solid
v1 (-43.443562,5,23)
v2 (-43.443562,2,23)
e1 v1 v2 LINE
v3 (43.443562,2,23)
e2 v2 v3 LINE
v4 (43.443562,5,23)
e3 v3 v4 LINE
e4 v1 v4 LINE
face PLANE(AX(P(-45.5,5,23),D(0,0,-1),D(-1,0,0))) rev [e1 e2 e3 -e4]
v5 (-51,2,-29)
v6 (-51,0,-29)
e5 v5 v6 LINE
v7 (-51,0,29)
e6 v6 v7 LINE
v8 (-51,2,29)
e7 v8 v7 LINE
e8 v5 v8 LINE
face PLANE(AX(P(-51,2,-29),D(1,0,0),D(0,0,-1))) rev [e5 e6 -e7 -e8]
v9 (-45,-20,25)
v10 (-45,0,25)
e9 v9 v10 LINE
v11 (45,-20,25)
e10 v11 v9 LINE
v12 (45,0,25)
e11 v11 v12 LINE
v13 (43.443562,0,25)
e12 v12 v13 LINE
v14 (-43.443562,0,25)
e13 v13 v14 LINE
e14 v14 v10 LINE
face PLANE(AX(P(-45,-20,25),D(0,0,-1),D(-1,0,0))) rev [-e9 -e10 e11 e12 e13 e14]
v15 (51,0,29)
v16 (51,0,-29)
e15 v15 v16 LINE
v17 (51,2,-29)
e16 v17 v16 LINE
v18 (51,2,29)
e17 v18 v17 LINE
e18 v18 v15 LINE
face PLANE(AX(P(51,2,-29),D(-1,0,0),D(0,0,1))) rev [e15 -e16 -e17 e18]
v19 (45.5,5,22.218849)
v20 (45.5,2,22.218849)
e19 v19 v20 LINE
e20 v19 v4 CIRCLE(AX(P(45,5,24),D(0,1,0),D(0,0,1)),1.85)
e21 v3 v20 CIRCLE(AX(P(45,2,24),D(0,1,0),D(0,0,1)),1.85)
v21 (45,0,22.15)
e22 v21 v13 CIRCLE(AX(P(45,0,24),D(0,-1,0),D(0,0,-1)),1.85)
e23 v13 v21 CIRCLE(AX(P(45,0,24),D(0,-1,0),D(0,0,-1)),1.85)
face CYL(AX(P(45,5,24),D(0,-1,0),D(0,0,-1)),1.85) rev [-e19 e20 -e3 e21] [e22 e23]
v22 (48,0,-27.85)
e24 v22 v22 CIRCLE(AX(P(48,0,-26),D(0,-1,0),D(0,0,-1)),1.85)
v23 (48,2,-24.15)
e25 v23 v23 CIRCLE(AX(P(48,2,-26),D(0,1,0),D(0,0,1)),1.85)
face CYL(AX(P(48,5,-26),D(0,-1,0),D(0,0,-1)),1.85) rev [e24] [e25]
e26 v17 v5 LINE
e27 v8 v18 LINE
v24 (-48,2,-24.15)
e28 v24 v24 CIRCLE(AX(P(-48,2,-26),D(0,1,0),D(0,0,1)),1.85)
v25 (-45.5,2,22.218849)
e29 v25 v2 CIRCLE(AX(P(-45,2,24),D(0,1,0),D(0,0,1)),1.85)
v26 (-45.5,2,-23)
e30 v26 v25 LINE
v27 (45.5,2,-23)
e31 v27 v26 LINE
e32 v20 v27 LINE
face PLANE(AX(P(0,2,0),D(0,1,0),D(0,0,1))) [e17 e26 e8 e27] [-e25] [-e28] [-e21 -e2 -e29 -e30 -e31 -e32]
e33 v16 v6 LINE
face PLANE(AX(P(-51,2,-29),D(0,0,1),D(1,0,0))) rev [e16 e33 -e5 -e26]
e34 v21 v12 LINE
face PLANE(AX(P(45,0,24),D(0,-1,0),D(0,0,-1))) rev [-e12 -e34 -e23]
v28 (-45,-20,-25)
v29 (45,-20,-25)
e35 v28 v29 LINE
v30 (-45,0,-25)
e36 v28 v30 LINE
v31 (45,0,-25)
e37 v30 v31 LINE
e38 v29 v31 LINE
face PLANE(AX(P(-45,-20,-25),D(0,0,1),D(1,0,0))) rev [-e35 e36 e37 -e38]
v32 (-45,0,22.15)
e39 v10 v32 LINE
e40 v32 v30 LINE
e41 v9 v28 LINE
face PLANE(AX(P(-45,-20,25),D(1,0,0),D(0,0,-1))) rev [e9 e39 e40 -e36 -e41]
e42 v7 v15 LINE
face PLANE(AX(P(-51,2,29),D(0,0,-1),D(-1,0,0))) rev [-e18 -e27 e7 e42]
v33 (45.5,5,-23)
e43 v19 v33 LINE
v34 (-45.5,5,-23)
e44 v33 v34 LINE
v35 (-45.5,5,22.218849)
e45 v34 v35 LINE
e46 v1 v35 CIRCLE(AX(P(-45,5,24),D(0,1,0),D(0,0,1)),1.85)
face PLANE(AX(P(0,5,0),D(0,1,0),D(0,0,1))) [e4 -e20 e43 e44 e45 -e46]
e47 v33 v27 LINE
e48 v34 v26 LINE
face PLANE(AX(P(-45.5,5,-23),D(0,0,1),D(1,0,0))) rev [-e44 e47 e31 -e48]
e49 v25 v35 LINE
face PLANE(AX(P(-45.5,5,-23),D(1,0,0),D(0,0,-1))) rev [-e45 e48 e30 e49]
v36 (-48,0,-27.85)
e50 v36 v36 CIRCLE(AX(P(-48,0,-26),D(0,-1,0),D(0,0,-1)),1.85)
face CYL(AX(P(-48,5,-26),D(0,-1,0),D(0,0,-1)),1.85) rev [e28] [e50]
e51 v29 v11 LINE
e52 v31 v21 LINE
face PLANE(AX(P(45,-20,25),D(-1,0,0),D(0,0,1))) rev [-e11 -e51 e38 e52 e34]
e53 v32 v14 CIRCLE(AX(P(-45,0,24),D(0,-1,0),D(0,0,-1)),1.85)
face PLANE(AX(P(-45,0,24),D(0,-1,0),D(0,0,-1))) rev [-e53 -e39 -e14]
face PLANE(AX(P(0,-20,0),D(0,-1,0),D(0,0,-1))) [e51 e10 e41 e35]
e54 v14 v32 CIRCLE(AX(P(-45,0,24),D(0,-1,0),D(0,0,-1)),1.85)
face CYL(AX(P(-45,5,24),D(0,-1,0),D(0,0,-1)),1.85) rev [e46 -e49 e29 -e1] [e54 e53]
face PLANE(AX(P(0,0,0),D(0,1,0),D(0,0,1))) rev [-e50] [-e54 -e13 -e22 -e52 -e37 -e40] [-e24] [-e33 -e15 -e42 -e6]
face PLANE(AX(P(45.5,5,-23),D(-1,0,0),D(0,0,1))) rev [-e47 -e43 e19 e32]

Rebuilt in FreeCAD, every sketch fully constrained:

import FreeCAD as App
import Part
import Sketcher

V = App.Vector

doc = App.newDocument("Part")
params = doc.addObject("Spreadsheet::Sheet", "Params")
for row, (alias, value) in enumerate([
    ("sketch1_width", "102 mm"),
    ("sketch1_height", "58 mm"),
    ("pad1_length", "2 mm"),
    ("sketch2_width", "91 mm"),
    ("sketch2_height", "46 mm"),
    ("pad2_length", "3 mm"),
    ("sketch3_width", "90 mm"),
    ("sketch3_height", "50 mm"),
    ("pad3_length", "20 mm"),
    ("sketch4_diameter", "3.7 mm"),
], start=1):
    params.set(f"A{row}", alias)
    params.set(f"B{row}", "=" + value)
    params.setAlias(f"B{row}", alias)

body = doc.addObject("PartDesign::Body", "Body")

# Sketch on XZ plane
sketch1 = doc.addObject("Sketcher::SketchObject", "Sketch")
body.addObject(sketch1)
sketch1.AttachmentSupport = (doc.XZ_Plane, [""])
sketch1.MapMode = "FlatFace"
sketch1.addGeometry([
    Part.LineSegment(V(-51, -29, 0), V(-51, 29, 0)),
    Part.LineSegment(V(-51, 29, 0), V(51, 29, 0)),
    Part.LineSegment(V(51, 29, 0), V(51, -29, 0)),
    Part.LineSegment(V(51, -29, 0), V(-51, -29, 0)),
], False)
sketch1.addConstraint([
    Sketcher.Constraint("Coincident", 0, 2, 1, 1),
    Sketcher.Constraint("Coincident", 1, 2, 2, 1),
    Sketcher.Constraint("Coincident", 2, 2, 3, 1),
    Sketcher.Constraint("Coincident", 3, 2, 0, 1),
    Sketcher.Constraint("Vertical", 0),
    Sketcher.Constraint("Horizontal", 1),
    Sketcher.Constraint("Vertical", 2),
    Sketcher.Constraint("Horizontal", 3),
    Sketcher.Constraint("Symmetric", 0, 2, 2, 2, -1, 1),
    Sketcher.Constraint("DistanceX", 1, 1, 1, 2, 102.0),
    Sketcher.Constraint("DistanceY", 0, 1, 0, 2, 58.0),
])
sketch1.setExpression("Constraints[9]", "Params.sketch1_width")
sketch1.setExpression("Constraints[10]", "Params.sketch1_height")
pad1 = doc.addObject("PartDesign::Pad", "Pad")
body.addObject(pad1)
pad1.Profile = sketch1
pad1.setExpression("Length", "Params.pad1_length")
pad1.Reversed = True

# Sketch on XZ plane
sketch2 = doc.addObject("Sketcher::SketchObject", "Sketch001")
body.addObject(sketch2)
sketch2.AttachmentSupport = (doc.XZ_Plane, [""])
sketch2.MapMode = "FlatFace"
sketch2.AttachmentOffset = App.Placement(V(0, 0, -2), App.Rotation())
sketch2.addGeometry([
    Part.LineSegment(V(-46, -23, 0), V(-46, 23, 0)),
    Part.LineSegment(V(-46, 23, 0), V(46, 23, 0)),
    Part.LineSegment(V(46, 23, 0), V(46, -23, 0)),
    Part.LineSegment(V(46, -23, 0), V(-46, -23, 0)),
], False)
sketch2.addConstraint([
    Sketcher.Constraint("Coincident", 0, 2, 1, 1),
    Sketcher.Constraint("Coincident", 1, 2, 2, 1),
    Sketcher.Constraint("Coincident", 2, 2, 3, 1),
    Sketcher.Constraint("Coincident", 3, 2, 0, 1),
    Sketcher.Constraint("Vertical", 0),
    Sketcher.Constraint("Horizontal", 1),
    Sketcher.Constraint("Vertical", 2),
    Sketcher.Constraint("Horizontal", 3),
    Sketcher.Constraint("Symmetric", 0, 2, 2, 2, -1, 1),
    Sketcher.Constraint("DistanceX", 1, 1, 1, 2, 91.0),
    Sketcher.Constraint("DistanceY", 0, 1, 0, 2, 46.0),
])
sketch2.setExpression("Constraints[9]", "Params.sketch2_width")
sketch2.setExpression("Constraints[10]", "Params.sketch2_height")
pad2 = doc.addObject("PartDesign::Pad", "Pad001")
body.addObject(pad2)
pad2.Profile = sketch2
pad2.setExpression("Length", "Params.pad2_length")
pad2.Reversed = True

# Sketch on XZ plane
sketch3 = doc.addObject("Sketcher::SketchObject", "Sketch002")
body.addObject(sketch3)
sketch3.AttachmentSupport = (doc.XZ_Plane, [""])
sketch3.MapMode = "FlatFace"
sketch3.addGeometry([
    Part.LineSegment(V(-45, 25, 0), V(-45, -25, 0)),
    Part.LineSegment(V(-45, -25, 0), V(45, -25, 0)),
    Part.LineSegment(V(45, -25, 0), V(45, 25, 0)),
    Part.LineSegment(V(45, 25, 0), V(-45, 25, 0)),
], False)
sketch3.addConstraint([
    Sketcher.Constraint("Coincident", 0, 2, 1, 1),
    Sketcher.Constraint("Coincident", 1, 2, 2, 1),
    Sketcher.Constraint("Coincident", 2, 2, 3, 1),
    Sketcher.Constraint("Coincident", 3, 2, 0, 1),
    Sketcher.Constraint("Vertical", 0),
    Sketcher.Constraint("Horizontal", 1),
    Sketcher.Constraint("Vertical", 2),
    Sketcher.Constraint("Horizontal", 3),
    Sketcher.Constraint("Symmetric", 0, 2, 2, 2, -1, 1),
    Sketcher.Constraint("DistanceX", 1, 1, 1, 2, 90.0),
    Sketcher.Constraint("DistanceY", 0, 2, 0, 1, 50.0),
])
sketch3.setExpression("Constraints[9]", "Params.sketch3_width")
sketch3.setExpression("Constraints[10]", "Params.sketch3_height")
pad3 = doc.addObject("PartDesign::Pad", "Pad002")
body.addObject(pad3)
pad3.Profile = sketch3
pad3.setExpression("Length", "Params.pad3_length")

# Sketch on XZ plane
sketch4 = doc.addObject("Sketcher::SketchObject", "Sketch003")
body.addObject(sketch4)
sketch4.AttachmentSupport = (doc.XZ_Plane, [""])
sketch4.MapMode = "FlatFace"
sketch4.addGeometry([
    Part.Circle(V(-45, 24, 0), V(0, 0, 1), 1.9),
    Part.Circle(V(45, 24, 0), V(0, 0, 1), 1.9),
    Part.Circle(V(-48, -26, 0), V(0, 0, 1), 1.9),
    Part.Circle(V(48, -26, 0), V(0, 0, 1), 1.9),
], False)
sketch4.addConstraint([
    Sketcher.Constraint("Equal", 0, 1),
    Sketcher.Constraint("Equal", 1, 2),
    Sketcher.Constraint("Equal", 2, 3),
    Sketcher.Constraint("Symmetric", 0, 3, 1, 3, -2),
    Sketcher.Constraint("Symmetric", 2, 3, 3, 3, -2),
    Sketcher.Constraint("Diameter", 0, 3.7),
    Sketcher.Constraint("DistanceX", 0, 3, -1, 1, 45.0),
    Sketcher.Constraint("DistanceY", -1, 1, 0, 3, 24.0),
    Sketcher.Constraint("DistanceX", 2, 3, -1, 1, 48.0),
    Sketcher.Constraint("DistanceY", 2, 3, -1, 1, 26.0),
])
sketch4.setExpression("Constraints[5]", "Params.sketch4_diameter")
pocket1 = doc.addObject("PartDesign::Pocket", "Pocket")
body.addObject(pocket1)
pocket1.Profile = sketch4
pocket1.Type = "ThroughAll"

doc.recompute()
